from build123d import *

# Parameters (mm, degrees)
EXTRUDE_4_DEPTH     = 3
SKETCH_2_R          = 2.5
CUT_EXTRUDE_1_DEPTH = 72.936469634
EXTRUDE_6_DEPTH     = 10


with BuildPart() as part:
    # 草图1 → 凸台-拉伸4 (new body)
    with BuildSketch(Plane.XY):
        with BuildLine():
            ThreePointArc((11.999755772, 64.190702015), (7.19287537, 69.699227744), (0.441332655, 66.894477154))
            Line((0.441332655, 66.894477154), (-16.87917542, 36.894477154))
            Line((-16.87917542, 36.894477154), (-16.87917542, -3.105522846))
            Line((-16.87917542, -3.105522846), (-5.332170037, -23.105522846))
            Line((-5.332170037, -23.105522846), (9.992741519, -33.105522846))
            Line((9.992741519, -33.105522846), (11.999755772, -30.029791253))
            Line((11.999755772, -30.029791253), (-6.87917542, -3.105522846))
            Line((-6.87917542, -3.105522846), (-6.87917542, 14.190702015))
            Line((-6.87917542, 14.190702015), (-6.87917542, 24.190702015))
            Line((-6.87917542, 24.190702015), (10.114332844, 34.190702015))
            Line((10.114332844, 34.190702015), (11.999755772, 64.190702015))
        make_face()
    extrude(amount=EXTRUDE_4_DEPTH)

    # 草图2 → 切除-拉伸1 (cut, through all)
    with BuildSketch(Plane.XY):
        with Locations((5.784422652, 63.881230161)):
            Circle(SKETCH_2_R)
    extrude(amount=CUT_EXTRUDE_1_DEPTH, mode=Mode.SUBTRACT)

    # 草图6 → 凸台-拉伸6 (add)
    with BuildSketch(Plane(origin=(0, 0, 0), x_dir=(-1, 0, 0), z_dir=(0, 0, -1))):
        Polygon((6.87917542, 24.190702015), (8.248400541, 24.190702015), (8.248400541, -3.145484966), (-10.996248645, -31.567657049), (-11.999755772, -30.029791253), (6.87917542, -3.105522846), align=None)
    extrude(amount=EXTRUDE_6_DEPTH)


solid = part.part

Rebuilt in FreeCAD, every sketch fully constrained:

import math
import FreeCAD as App
import Part
import Sketcher

V = App.Vector
Q = App.Units.Quantity


def add_polygon(sketch, points):
    """Adds a closed chain of lines whose ends are joined by coincident constraints."""
    first, n = sketch.GeometryCount, len(points)
    for a, b in zip(points, points[1:] + points[:1]):
        sketch.addGeometry(Part.LineSegment(App.Vector(*a, 0), App.Vector(*b, 0)), False)
    for i in range(n):
        sketch.addConstraint(Sketcher.Constraint("Coincident", first + i, 2, first + (i + 1) % n, 1))

doc = App.newDocument("Part")
params = doc.addObject("Spreadsheet::Sheet", "Params")
for row, (alias, value) in enumerate([
    ("sketch1_height", "40 mm"),
    ("pad1_length", "3 mm"),
    ("sketch2_diameter", "5 mm"),
    ("pad2_length", "10 mm"),
], start=1):
    params.set(f"A{row}", alias)
    params.set(f"B{row}", "=" + value)
    params.setAlias(f"B{row}", alias)

body = doc.addObject("PartDesign::Body", "Body")

# Sketch on XY plane
sketch1 = doc.addObject("Sketcher::SketchObject", "Sketch")
body.addObject(sketch1)
sketch1.AttachmentSupport = (doc.XY_Plane, [""])
sketch1.MapMode = "FlatFace"
sketch1.addGeometry([
    Part.ArcOfCircle(Part.Circle(V(5.766907, 63.603325, 0), V(0, 0, 1), 6.260465), math.radians(5.383596), math.radians(148.284341)),  # 0
    Part.LineSegment(V(0.441333, 66.894477, 0), V(-16.879175, 36.894477, 0)),  # 1
    Part.LineSegment(V(-16.879175, 36.894477, 0), V(-16.879175, -3.105523, 0)),  # 2
    Part.LineSegment(V(-16.879175, -3.105523, 0), V(-5.33217, -23.105523, 0)),  # 3
    Part.LineSegment(V(-5.33217, -23.105523, 0), V(9.992742, -33.105523, 0)),  # 4
    Part.LineSegment(V(9.992742, -33.105523, 0), V(11.999756, -30.029791, 0)),  # 5
    Part.LineSegment(V(11.999756, -30.029791, 0), V(-6.879175, -3.105523, 0)),  # 6
    Part.LineSegment(V(-6.879175, -3.105523, 0), V(-6.879175, 24.190702, 0)),  # 7
    Part.LineSegment(V(-6.879175, 24.190702, 0), V(10.114333, 34.190702, 0)),  # 8
    Part.LineSegment(V(10.114333, 34.190702, 0), V(11.999756, 64.190702, 0)),  # 9
], False)
sketch1.addConstraint([
    Sketcher.Constraint("Coincident", 0, 2, 1, 1),
    Sketcher.Constraint("Coincident", 1, 2, 2, 1),
    Sketcher.Constraint("Coincident", 2, 2, 3, 1),
    Sketcher.Constraint("Coincident", 3, 2, 4, 1),
    Sketcher.Constraint("Coincident", 4, 2, 5, 1),
    Sketcher.Constraint("Coincident", 5, 2, 6, 1),
    Sketcher.Constraint("Coincident", 6, 2, 7, 1),
    Sketcher.Constraint("Coincident", 7, 2, 8, 1),
    Sketcher.Constraint("Coincident", 8, 2, 9, 1),
    Sketcher.Constraint("Coincident", 9, 2, 0, 1),
    Sketcher.Constraint("Vertical", 2),
    Sketcher.Constraint("Vertical", 7),
    Sketcher.Constraint("Perpendicular", 4, 5),
    Sketcher.Constraint("Horizontal", 2, 2, 6, 2),
    Sketcher.Constraint("Vertical", 5, 2, 9, 2),
    Sketcher.Constraint("DistanceY", 2, 2, 2, 1, Q("40 mm")),
    Sketcher.Constraint("Angle", 1, Q("-120 deg")),
    Sketcher.Constraint("Angle", 3, Q("-60 deg")),
    Sketcher.Constraint("DistanceY", 1, 2, 0, 2, Q("30 mm")),
    Sketcher.Constraint("DistanceY", 3, 2, 2, 2, Q("20 mm")),
    Sketcher.Constraint("DistanceY", 4, 2, 3, 2, Q("10 mm")),
    Sketcher.Constraint("DistanceX", 2, 2, 6, 2, Q("10 mm")),
    Sketcher.Constraint("DistanceY", 7, 2, 8, 2, Q("10 mm")),
    Sketcher.Constraint("DistanceY", 8, 2, 9, 2, Q("30 mm")),
    Sketcher.Constraint("Radius", 0, Q("6.260465 mm")),
    Sketcher.Constraint("DistanceX", 0, 2, 8, 2, Q("9.673 mm")),
    Sketcher.Constraint("Distance", 9, Q("30.059189 mm")),
    Sketcher.Constraint("DistanceY", 7, 1, 7, 2, Q("27.296225 mm")),
    Sketcher.Constraint("DistanceX", 3, 2, -1, 1, Q("5.33217 mm")),
    Sketcher.Constraint("DistanceX", -1, 1, 4, 2, Q("9.992742 mm")),
    Sketcher.Constraint("DistanceY", 5, 2, -1, 1, Q("30.029791 mm")),
])
sketch1.setExpression("Constraints[15]", "Params.sketch1_height")
pad1 = doc.addObject("PartDesign::Pad", "Pad")
body.addObject(pad1)
pad1.Profile = sketch1
pad1.setExpression("Length", "Params.pad1_length")

# Sketch on XY plane
sketch2 = doc.addObject("Sketcher::SketchObject", "Sketch001")
body.addObject(sketch2)
sketch2.AttachmentSupport = (doc.XY_Plane, [""])
sketch2.MapMode = "FlatFace"
sketch2.addGeometry(Part.Circle(V(5.784423, 63.88123, 0), V(0, 0, 1), 2.5), False)
sketch2.addConstraint([
    Sketcher.Constraint("Diameter", 0, Q("5 mm")),
    Sketcher.Constraint("DistanceY", -1, 1, 0, 3, Q("63.88123 mm")),
    Sketcher.Constraint("DistanceX", -1, 1, 0, 3, Q("5.784423 mm")),
])
sketch2.setExpression("Constraints[0]", "Params.sketch2_diameter")
pocket1 = doc.addObject("PartDesign::Pocket", "Pocket")
body.addObject(pocket1)
pocket1.Profile = sketch2
pocket1.Type = "ThroughAll"
pocket1.Reversed = True

# Sketch on XY plane
sketch3 = doc.addObject("Sketcher::SketchObject", "Sketch002")
body.addObject(sketch3)
sketch3.AttachmentSupport = (doc.XY_Plane, [""])
sketch3.MapMode = "FlatFace"
add_polygon(sketch3, [(-8.248401, 24.190702), (-6.879175, 24.190702), (-6.879175, -3.105523), (11.999756, -30.029791), (10.996249, -31.567657), (-8.248401, -3.145485)])  # lines 0-5
sketch3.addConstraint([
    Sketcher.Constraint("Horizontal", 0),
    Sketcher.Constraint("Vertical", 1),
    Sketcher.Constraint("Vertical", 5),
    Sketcher.Constraint("DistanceX", 4, 2, -1, 1, Q("8.248401 mm")),
    Sketcher.Constraint("DistanceX", 0, 1, 0, 2, Q("1.369225 mm")),
    Sketcher.Constraint("DistanceY", 1, 2, 1, 1, Q("27.296225 mm")),
    Sketcher.Constraint("DistanceY", 5, 1, 5, 2, Q("27.336187 mm")),
    Sketcher.Constraint("DistanceY", 2, 2, -1, 1, Q("30.029791 mm")),
    Sketcher.Constraint("DistanceX", -1, 1, 3, 2, Q("10.996249 mm")),
    Sketcher.Constraint("DistanceX", 1, 2, 2, 2, Q("18.878931 mm")),
    Sketcher.Constraint("DistanceY", 2, 2, 1, 2, Q("26.924268 mm")),
    Sketcher.Constraint("DistanceY", 3, 2, 0, 2, Q("55.758359 mm")),
])
pad2 = doc.addObject("PartDesign::Pad", "Pad001")
body.addObject(pad2)
pad2.Profile = sketch3
pad2.setExpression("Length", "Params.pad2_length")
pad2.Reversed = True

doc.recompute()
